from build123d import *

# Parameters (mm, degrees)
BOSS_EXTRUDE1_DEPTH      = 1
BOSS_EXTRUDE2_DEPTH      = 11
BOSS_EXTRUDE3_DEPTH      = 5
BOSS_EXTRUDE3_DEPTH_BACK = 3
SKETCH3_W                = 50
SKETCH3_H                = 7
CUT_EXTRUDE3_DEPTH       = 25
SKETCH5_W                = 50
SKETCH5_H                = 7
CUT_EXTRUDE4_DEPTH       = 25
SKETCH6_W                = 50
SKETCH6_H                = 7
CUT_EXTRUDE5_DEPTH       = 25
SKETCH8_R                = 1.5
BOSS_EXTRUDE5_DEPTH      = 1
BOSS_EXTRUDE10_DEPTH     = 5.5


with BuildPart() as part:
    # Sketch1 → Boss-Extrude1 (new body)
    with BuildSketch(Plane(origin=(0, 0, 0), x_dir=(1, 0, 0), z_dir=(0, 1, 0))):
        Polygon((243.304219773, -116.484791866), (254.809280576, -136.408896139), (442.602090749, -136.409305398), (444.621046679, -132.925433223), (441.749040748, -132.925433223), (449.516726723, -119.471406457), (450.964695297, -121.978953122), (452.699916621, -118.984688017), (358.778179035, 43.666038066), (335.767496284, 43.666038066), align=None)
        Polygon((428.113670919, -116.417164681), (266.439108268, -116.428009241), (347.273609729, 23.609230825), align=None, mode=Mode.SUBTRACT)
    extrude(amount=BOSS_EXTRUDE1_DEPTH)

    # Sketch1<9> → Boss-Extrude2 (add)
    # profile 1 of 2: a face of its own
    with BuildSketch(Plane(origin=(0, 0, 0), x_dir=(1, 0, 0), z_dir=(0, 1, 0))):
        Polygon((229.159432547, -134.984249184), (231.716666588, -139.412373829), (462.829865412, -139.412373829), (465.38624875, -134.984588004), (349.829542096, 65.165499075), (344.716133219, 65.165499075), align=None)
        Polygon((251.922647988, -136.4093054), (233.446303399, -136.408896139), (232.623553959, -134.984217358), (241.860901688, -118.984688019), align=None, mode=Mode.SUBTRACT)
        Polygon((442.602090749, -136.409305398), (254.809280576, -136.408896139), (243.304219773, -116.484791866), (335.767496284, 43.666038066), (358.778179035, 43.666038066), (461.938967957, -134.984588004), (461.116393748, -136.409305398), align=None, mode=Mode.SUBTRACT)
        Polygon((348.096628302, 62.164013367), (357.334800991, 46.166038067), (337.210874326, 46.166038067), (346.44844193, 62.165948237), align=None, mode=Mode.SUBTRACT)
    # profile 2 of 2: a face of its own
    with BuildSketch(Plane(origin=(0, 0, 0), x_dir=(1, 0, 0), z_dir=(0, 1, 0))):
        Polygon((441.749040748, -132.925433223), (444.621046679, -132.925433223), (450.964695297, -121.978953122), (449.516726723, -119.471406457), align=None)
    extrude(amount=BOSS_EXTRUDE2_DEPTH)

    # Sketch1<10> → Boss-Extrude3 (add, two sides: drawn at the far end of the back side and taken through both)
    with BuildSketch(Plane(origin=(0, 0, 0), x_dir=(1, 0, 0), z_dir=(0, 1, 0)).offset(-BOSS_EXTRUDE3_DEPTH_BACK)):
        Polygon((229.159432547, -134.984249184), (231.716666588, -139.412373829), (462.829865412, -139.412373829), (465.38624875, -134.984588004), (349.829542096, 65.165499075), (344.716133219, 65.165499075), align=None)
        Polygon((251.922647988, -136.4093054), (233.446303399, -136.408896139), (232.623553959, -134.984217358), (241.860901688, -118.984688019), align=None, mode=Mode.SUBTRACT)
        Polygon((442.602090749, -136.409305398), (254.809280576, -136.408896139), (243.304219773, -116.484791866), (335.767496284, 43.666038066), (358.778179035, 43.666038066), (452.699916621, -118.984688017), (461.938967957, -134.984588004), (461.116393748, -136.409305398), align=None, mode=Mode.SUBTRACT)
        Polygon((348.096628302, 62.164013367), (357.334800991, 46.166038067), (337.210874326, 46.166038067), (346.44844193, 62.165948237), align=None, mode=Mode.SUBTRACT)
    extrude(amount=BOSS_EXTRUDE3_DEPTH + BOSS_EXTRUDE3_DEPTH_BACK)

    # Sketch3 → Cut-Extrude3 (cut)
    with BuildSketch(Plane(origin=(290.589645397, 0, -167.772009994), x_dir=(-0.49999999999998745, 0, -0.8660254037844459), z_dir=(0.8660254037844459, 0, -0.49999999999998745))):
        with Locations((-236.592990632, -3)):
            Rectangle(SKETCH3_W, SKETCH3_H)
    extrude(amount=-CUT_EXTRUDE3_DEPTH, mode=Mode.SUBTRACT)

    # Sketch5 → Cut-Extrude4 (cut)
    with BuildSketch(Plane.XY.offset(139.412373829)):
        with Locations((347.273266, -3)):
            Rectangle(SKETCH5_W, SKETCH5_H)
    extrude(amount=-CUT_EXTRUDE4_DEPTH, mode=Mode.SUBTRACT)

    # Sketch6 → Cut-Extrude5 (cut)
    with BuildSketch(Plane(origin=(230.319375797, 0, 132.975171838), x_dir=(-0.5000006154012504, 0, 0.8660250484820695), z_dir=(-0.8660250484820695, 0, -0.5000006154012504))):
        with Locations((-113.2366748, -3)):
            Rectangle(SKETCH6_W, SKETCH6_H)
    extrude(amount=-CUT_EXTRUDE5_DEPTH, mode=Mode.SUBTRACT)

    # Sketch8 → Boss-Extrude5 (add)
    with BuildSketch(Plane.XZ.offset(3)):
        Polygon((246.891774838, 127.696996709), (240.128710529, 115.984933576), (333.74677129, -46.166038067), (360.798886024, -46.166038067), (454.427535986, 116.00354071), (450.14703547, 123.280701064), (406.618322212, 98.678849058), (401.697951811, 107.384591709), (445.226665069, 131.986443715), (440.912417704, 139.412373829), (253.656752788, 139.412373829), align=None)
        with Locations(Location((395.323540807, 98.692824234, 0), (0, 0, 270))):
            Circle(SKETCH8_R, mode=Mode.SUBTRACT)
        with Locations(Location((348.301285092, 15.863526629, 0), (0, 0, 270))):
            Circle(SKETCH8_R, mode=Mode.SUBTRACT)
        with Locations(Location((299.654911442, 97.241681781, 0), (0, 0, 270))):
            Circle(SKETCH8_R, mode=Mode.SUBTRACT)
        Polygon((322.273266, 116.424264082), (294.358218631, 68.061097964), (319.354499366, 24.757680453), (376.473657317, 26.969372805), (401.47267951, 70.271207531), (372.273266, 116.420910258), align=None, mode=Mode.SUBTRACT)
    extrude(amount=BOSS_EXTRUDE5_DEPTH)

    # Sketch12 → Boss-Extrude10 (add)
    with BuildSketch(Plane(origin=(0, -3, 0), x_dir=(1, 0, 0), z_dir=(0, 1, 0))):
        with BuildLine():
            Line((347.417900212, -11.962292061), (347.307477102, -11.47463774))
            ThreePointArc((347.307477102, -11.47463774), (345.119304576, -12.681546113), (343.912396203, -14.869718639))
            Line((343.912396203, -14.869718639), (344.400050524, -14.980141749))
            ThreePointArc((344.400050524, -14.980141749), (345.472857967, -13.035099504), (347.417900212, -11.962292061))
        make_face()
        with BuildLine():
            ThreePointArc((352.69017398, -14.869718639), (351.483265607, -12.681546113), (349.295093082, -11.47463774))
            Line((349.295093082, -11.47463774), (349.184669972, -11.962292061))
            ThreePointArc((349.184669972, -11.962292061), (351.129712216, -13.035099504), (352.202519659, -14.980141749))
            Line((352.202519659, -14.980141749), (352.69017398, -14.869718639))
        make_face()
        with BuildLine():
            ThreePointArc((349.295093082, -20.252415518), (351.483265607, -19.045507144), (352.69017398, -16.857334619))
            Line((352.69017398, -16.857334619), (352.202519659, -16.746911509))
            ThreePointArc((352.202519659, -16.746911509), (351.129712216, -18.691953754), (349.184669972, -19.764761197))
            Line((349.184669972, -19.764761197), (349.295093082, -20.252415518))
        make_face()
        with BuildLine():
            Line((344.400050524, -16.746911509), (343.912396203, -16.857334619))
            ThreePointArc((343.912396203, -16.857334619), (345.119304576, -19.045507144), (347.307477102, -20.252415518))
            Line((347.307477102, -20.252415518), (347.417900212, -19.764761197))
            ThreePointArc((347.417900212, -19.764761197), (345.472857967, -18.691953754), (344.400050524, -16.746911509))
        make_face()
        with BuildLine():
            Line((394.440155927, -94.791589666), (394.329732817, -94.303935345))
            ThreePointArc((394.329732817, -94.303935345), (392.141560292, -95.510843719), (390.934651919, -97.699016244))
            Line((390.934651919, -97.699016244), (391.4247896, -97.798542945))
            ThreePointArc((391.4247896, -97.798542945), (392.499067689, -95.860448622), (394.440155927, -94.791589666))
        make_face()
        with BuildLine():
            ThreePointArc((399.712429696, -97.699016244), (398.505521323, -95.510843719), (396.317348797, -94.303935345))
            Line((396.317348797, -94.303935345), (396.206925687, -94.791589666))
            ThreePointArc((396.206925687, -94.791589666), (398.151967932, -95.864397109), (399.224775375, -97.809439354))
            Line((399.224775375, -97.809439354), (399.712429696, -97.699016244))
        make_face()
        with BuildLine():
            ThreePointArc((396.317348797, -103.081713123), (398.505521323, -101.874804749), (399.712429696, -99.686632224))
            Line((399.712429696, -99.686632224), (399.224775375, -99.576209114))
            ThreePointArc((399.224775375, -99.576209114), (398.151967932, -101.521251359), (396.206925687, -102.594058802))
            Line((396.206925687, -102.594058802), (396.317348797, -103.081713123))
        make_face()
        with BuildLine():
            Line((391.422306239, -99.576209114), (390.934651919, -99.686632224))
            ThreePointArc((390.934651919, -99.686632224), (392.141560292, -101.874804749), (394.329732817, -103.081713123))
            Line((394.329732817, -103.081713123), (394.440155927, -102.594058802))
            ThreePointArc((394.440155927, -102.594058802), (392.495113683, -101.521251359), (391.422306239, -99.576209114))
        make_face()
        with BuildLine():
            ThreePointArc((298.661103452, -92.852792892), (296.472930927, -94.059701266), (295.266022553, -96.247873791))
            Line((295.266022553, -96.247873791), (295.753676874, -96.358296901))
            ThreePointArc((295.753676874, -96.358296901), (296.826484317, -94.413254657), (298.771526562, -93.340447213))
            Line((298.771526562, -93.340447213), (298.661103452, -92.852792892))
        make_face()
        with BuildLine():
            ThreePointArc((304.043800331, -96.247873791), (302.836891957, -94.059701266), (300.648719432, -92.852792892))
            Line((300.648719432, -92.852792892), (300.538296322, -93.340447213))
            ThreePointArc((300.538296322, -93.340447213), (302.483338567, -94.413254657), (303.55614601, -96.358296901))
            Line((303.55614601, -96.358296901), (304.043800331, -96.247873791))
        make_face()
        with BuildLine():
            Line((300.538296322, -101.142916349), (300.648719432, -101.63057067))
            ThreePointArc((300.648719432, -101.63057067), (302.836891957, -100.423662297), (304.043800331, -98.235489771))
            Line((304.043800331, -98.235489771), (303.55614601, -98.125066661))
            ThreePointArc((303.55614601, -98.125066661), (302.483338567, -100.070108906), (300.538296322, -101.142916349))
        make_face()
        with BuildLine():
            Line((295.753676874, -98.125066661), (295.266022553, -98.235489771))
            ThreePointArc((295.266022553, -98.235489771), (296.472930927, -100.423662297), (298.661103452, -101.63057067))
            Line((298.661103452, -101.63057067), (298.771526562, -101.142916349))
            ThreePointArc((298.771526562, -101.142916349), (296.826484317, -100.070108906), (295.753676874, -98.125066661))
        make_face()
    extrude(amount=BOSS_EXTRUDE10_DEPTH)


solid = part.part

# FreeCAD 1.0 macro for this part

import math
import FreeCAD as App
import Part
import Sketcher

V = App.Vector
Q = App.Units.Quantity


def add_polygon(sketch, points):
    """Adds a closed chain of lines whose ends are joined by coincident constraints."""
    first, n = sketch.GeometryCount, len(points)
    for a, b in zip(points, points[1:] + points[:1]):
        sketch.addGeometry(Part.LineSegment(App.Vector(*a, 0), App.Vector(*b, 0)), False)
    for i in range(n):
        sketch.addConstraint(Sketcher.Constraint("Coincident", first + i, 2, first + (i + 1) % n, 1))

doc = App.newDocument("Part")
params = doc.addObject("Spreadsheet::Sheet", "Params")
for row, (alias, value) in enumerate([
    ("pad1_length", "1 mm"),
    ("pad2_length", "11 mm"),
    ("pad3_length", "5 mm"),
    ("pad3_length2", "3 mm"),
    ("sketch4_width", "50 mm"),
    ("sketch4_height", "7 mm"),
    ("pocket1_length", "25 mm"),
    ("sketch5_width", "50 mm"),
    ("sketch5_height", "7 mm"),
    ("pocket2_length", "25 mm"),
    ("sketch6_width", "50 mm"),
    ("sketch6_height", "7 mm"),
    ("pocket3_length", "25 mm"),
    ("sketch7_diameter", "3 mm"),
    ("sketch7_length", "50 mm"),
    ("sketch7_length2", "10 mm"),
    ("pad4_length", "1 mm"),
    ("sketch8_radius", "4 mm"),
    ("sketch8_radius2", "4 mm"),
    ("sketch8_radius3", "4 mm"),
    ("sketch8_radius4", "4 mm"),
    ("sketch8_radius5", "4 mm"),
    ("pad5_length", "5.5 mm"),
], start=1):
    params.set(f"A{row}", alias)
    params.set(f"B{row}", "=" + value)
    params.setAlias(f"B{row}", alias)

body = doc.addObject("PartDesign::Body", "Body")

# Sketch on XZ plane
sketch1 = body.newObject("Sketcher::SketchObject", "Sketch")
sketch1.AttachmentSupport = (doc.getObject("XZ_Plane"), [""])
sketch1.MapMode = "FlatFace"
add_polygon(sketch1, [(243.30422, 116.484792), (254.809281, 136.408896), (442.602091, 136.409305), (444.621047, 132.925433), (441.749041, 132.925433), (449.516727, 119.471406), (450.964695, 121.978953), (452.699917, 118.984688), (358.778179, -43.666038), (335.767496, -43.666038)])  # lines 0-9
add_polygon(sketch1, [(347.27361, -23.609231), (428.113671, 116.417165), (266.439108, 116.428009)])  # lines 10-12
sketch1.addConstraint([
    Sketcher.Constraint("Horizontal", 3),
    Sketcher.Constraint("Horizontal", 8),
    Sketcher.Constraint("Parallel", 0, 5),
    Sketcher.Constraint("Parallel", 2, 6),
    Sketcher.Constraint("Parallel", 5, 7),
    Sketcher.Constraint("Parallel", 4, 9),
    Sketcher.Constraint("Angle", 4, Q("-60 deg")),
    Sketcher.Constraint("DistanceY", 4, 2, 1, 2, 16.937899),
    Sketcher.Constraint("DistanceX", 8, 2, 5, 2, 115.197199),
    Sketcher.Constraint("DistanceX", 11, 2, 12, 2, 80.834501),
    Sketcher.Constraint("Distance", 0, 23.007311),
    Sketcher.Constraint("Distance", 1, 187.79281),
    Sketcher.Constraint("Distance", 4, 15.535372),
    Sketcher.Constraint("Distance", 7, 187.82053),
    Sketcher.Constraint("Distance", 12, 161.693059),
    Sketcher.Constraint("DistanceX", 3, 2, 3, 1, 2.872006),
    Sketcher.Constraint("DistanceX", 8, 2, 8, 1, 23.010683),
    Sketcher.Constraint("DistanceX", -1, 1, 0, 2, 254.809281),
    Sketcher.Constraint("DistanceX", -1, 1, 3, 2, 441.749041),
    Sketcher.Constraint("DistanceY", -1, 1, 6, 2, 118.984688),
    Sketcher.Constraint("DistanceX", -1, 1, 7, 2, 358.778179),
    Sketcher.Constraint("DistanceY", 7, 2, -1, 1, 43.666038),
    Sketcher.Constraint("DistanceX", -1, 1, 10, 2, 428.113671),
    Sketcher.Constraint("DistanceX", -1, 1, 11, 2, 266.439108),
    Sketcher.Constraint("DistanceY", -1, 1, 11, 2, 116.428009),
    Sketcher.Constraint("DistanceY", 10, 2, 3, 2, 16.508269),
])
pad1 = body.newObject("PartDesign::Pad", "Pad")
pad1.Profile = sketch1
pad1.setExpression("Length", "Params.pad1_length")
pad1.Reversed = True

# Sketch on XZ plane
sketch2 = body.newObject("Sketcher::SketchObject", "Sketch001")
sketch2.AttachmentSupport = (doc.getObject("XZ_Plane"), [""])
sketch2.MapMode = "FlatFace"
add_polygon(sketch2, [(229.159433, 134.984249), (231.716667, 139.412374), (462.829865, 139.412374), (465.386249, 134.984588), (349.829542, -65.165499), (344.716133, -65.165499)])  # lines 0-5
add_polygon(sketch2, [(241.860902, 118.984688), (251.922648, 136.409305), (233.446303, 136.408896), (232.623554, 134.984217)])  # lines 6-9
add_polygon(sketch2, [(461.116394, 136.409305), (442.602091, 136.409305), (254.809281, 136.408896), (243.30422, 116.484792), (335.767496, -43.666038), (358.778179, -43.666038), (461.938968, 134.984588)])  # lines 10-16
add_polygon(sketch2, [(346.448442, -62.165948), (348.096628, -62.164013), (357.334801, -46.166038), (337.210874, -46.166038)])  # lines 17-20
add_polygon(sketch2, [(441.749041, 132.925433), (444.621047, 132.925433), (450.964695, 121.978953), (449.516727, 119.471406)])  # lines 21-24
sketch2.addConstraint([
    Sketcher.Constraint("Horizontal", 1),
    Sketcher.Constraint("Horizontal", 4),
    Sketcher.Constraint("Horizontal", 10),
    Sketcher.Constraint("Horizontal", 14),
    Sketcher.Constraint("Horizontal", 19),
    Sketcher.Constraint("Horizontal", 21),
    Sketcher.Constraint("DistanceY", 18, 2, 14, 2, 2.5),
    Sketcher.Constraint("DistanceX", 1, 1, 1, 2, 231.113199),
    Sketcher.Constraint("DistanceX", 4, 2, 4, 1, 5.113409),
    Sketcher.Constraint("DistanceY", 3, 2, -1, 1, 65.165499),
    Sketcher.Constraint("DistanceX", -1, 1, 9, 2, 241.860902),
    Sketcher.Constraint("DistanceX", -1, 1, 18, 2, 357.334801),
    Sketcher.Constraint("DistanceX", 5, 2, 4, 2, 115.556701),
    Sketcher.Constraint("DistanceX", 6, 2, 2, 2, 213.463601),
    Sketcher.Constraint("DistanceX", 7, 2, 9, 2, 8.414598),
    Sketcher.Constraint("DistanceX", 20, 2, 3, 2, 3.3811),
    Sketcher.Constraint("DistanceX", 22, 2, 16, 2, 10.151698),
    Sketcher.Constraint("DistanceY", 23, 2, 10, 2, 16.937899),
    Sketcher.Constraint("Distance", 11, 187.79281),
    Sketcher.Constraint("Distance", 12, 23.007311),
    Sketcher.Constraint("Distance", 16, 1.645129),
    Sketcher.Constraint("Distance", 18, 18.473739),
    Sketcher.Constraint("Distance", 22, 12.651771),
    Sketcher.Constraint("Distance", 24, 15.535372),
    Sketcher.Constraint("DistanceX", 10, 2, 10, 1, 18.514303),
    Sketcher.Constraint("DistanceX", 14, 1, 14, 2, 23.010683),
    Sketcher.Constraint("DistanceX", 19, 2, 19, 1, 20.123927),
    Sketcher.Constraint("DistanceX", 21, 1, 21, 2, 2.872006),
    Sketcher.Constraint("DistanceX", -1, 1, 2, 2, 465.386249),
    Sketcher.Constraint("DistanceY", -1, 1, 2, 2, 134.984588),
    Sketcher.Constraint("DistanceY", -1, 1, 5, 2, 134.984249),
    Sketcher.Constraint("DistanceY", -1, 1, 9, 2, 118.984688),
    Sketcher.Constraint("DistanceX", -1, 1, 10, 2, 442.602091),
    Sketcher.Constraint("DistanceX", -1, 1, 12, 2, 243.30422),
    Sketcher.Constraint("DistanceY", -1, 1, 12, 2, 116.484792),
    Sketcher.Constraint("DistanceY", 13, 2, -1, 1, 43.666038),
    Sketcher.Constraint("DistanceX", -1, 1, 14, 2, 358.778179),
    Sketcher.Constraint("DistanceY", -1, 1, 15, 2, 134.984588),
    Sketcher.Constraint("DistanceX", -1, 1, 17, 2, 348.096628),
    Sketcher.Constraint("DistanceX", -1, 1, 20, 2, 346.448442),
    Sketcher.Constraint("DistanceY", 20, 2, -1, 1, 62.165948),
    Sketcher.Constraint("DistanceX", -1, 1, 24, 2, 441.749041),
    Sketcher.Constraint("DistanceX", 0, 2, 6, 2, 20.205981),
    Sketcher.Constraint("DistanceY", 6, 2, 0, 2, 3.003068),
    Sketcher.Constraint("DistanceY", 7, 2, 6, 2, 0.000409),
    Sketcher.Constraint("DistanceX", 8, 2, 7, 2, 0.822749),
    Sketcher.Constraint("DistanceY", 8, 2, 7, 2, 1.424679),
    Sketcher.Constraint("DistanceY", 9, 2, 8, 2, 15.999529),
    Sketcher.Constraint("DistanceY", 10, 2, 1, 2, 3.003068),
    Sketcher.Constraint("DistanceY", 21, 2, 1, 2, 6.486941),
])
pad2 = body.newObject("PartDesign::Pad", "Pad001")
pad2.Profile = sketch2
pad2.setExpression("Length", "Params.pad2_length")
pad2.Reversed = True

# Sketch on XZ plane
sketch3 = body.newObject("Sketcher::SketchObject", "Sketch002")
sketch3.AttachmentSupport = (doc.getObject("XZ_Plane"), [""])
sketch3.MapMode = "FlatFace"
add_polygon(sketch3, [(229.159433, 134.984249), (231.716667, 139.412374), (462.829865, 139.412374), (465.386249, 134.984588), (349.829542, -65.165499), (344.716133, -65.165499)])  # lines 0-5
add_polygon(sketch3, [(241.860902, 118.984688), (251.922648, 136.409305), (233.446303, 136.408896), (232.623554, 134.984217)])  # lines 6-9
add_polygon(sketch3, [(461.116394, 136.409305), (442.602091, 136.409305), (254.809281, 136.408896), (243.30422, 116.484792), (335.767496, -43.666038), (358.778179, -43.666038), (452.699917, 118.984688), (461.938968, 134.984588)])  # lines 10-17
add_polygon(sketch3, [(346.448442, -62.165948), (348.096628, -62.164013), (357.334801, -46.166038), (337.210874, -46.166038)])  # lines 18-21
sketch3.addConstraint([
    Sketcher.Constraint("Horizontal", 1),
    Sketcher.Constraint("Horizontal", 4),
    Sketcher.Constraint("Horizontal", 10),
    Sketcher.Constraint("Horizontal", 14),
    Sketcher.Constraint("Horizontal", 20),
    Sketcher.Constraint("DistanceY", 19, 2, 14, 2, 2.5),
    Sketcher.Constraint("DistanceX", 1, 1, 1, 2, 231.113199),
    Sketcher.Constraint("DistanceX", 4, 2, 4, 1, 5.113409),
    Sketcher.Constraint("DistanceY", 3, 2, -1, 1, 65.165499),
    Sketcher.Constraint("DistanceX", -1, 1, 9, 2, 241.860902),
    Sketcher.Constraint("DistanceX", -1, 1, 19, 2, 357.334801),
    Sketcher.Constraint("DistanceX", 5, 2, 4, 2, 115.556701),
    Sketcher.Constraint("DistanceX", 6, 2, 2, 2, 213.463601),
    Sketcher.Constraint("DistanceX", 7, 2, 9, 2, 8.414598),
    Sketcher.Constraint("DistanceY", 15, 2, 2, 2, 15.9999),
    Sketcher.Constraint("DistanceY", 15, 2, 16, 2, 15.9999),
    Sketcher.Constraint("DistanceX", 21, 2, 3, 2, 3.3811),
    Sketcher.Constraint("Distance", 11, 187.79281),
    Sketcher.Constraint("Distance", 12, 23.007311),
    Sketcher.Constraint("Distance", 15, 187.82053),
    Sketcher.Constraint("Distance", 17, 1.645129),
    Sketcher.Constraint("Distance", 19, 18.473739),
    Sketcher.Constraint("DistanceX", 10, 2, 10, 1, 18.514303),
    Sketcher.Constraint("DistanceX", 14, 1, 14, 2, 23.010683),
    Sketcher.Constraint("DistanceX", 20, 2, 20, 1, 20.123927),
    Sketcher.Constraint("DistanceX", -1, 1, 2, 2, 465.386249),
    Sketcher.Constraint("DistanceY", -1, 1, 2, 2, 134.984588),
    Sketcher.Constraint("DistanceY", -1, 1, 5, 2, 134.984249),
    Sketcher.Constraint("DistanceY", -1, 1, 9, 2, 118.984688),
    Sketcher.Constraint("DistanceX", -1, 1, 10, 2, 442.602091),
    Sketcher.Constraint("DistanceX", -1, 1, 12, 2, 243.30422),
    Sketcher.Constraint("DistanceY", -1, 1, 12, 2, 116.484792),
    Sketcher.Constraint("DistanceY", 13, 2, -1, 1, 43.666038),
    Sketcher.Constraint("DistanceX", -1, 1, 14, 2, 358.778179),
    Sketcher.Constraint("DistanceX", -1, 1, 18, 2, 348.096628),
    Sketcher.Constraint("DistanceX", -1, 1, 21, 2, 346.448442),
    Sketcher.Constraint("DistanceY", 21, 2, -1, 1, 62.165948),
    Sketcher.Constraint("DistanceX", 0, 2, 6, 2, 20.205981),
    Sketcher.Constraint("DistanceY", 6, 2, 0, 2, 3.003068),
    Sketcher.Constraint("DistanceY", 7, 2, 6, 2, 0.000409),
    Sketcher.Constraint("DistanceX", 8, 2, 7, 2, 0.822749),
    Sketcher.Constraint("DistanceY", 8, 2, 7, 2, 1.424679),
    Sketcher.Constraint("DistanceY", 9, 2, 8, 2, 15.999529),
    Sketcher.Constraint("DistanceY", 10, 2, 1, 2, 3.003068),
])
pad3 = body.newObject("PartDesign::Pad", "Pad002")
pad3.Profile = sketch3
pad3.Type = "TwoLengths"
pad3.setExpression("Length", "Params.pad3_length")
pad3.setExpression("Length2", "Params.pad3_length2")
pad3.Reversed = True

# Sketch on an angled plane
sketch4 = body.newObject("Sketcher::SketchObject", "Sketch003")
sketch4.Placement = App.Placement(V(290.589645, 0, -167.77201), App.Rotation(V(-0.5, 0, -0.866025404), V(0, 1, 0), V(0.866025404, 0, -0.5), "ZXY"))
add_polygon(sketch4, [(-262, 0), (-262, -7), (-212, -7), (-212, 0)])  # lines 0-3
sketch4.addConstraint([
    Sketcher.Constraint("Vertical", 0),
    Sketcher.Constraint("Horizontal", 1),
    Sketcher.Constraint("Vertical", 2),
    Sketcher.Constraint("Horizontal", 3),
    Sketcher.Constraint("DistanceX", 1, 1, 1, 2, 50.0),
    Sketcher.Constraint("DistanceY", 0, 2, 0, 1, 7.0),
    Sketcher.Constraint("DistanceY", 0, 2, -1, 1, 6.5),
    Sketcher.Constraint("DistanceX", 0, 2, -1, 1, 261.592991),
])
sketch4.setExpression("Constraints[8]", "Params.sketch4_width")
sketch4.setExpression("Constraints[9]", "Params.sketch4_height")
pocket1 = body.newObject("PartDesign::Pocket", "Pocket")
pocket1.Profile = sketch4
pocket1.setExpression("Length", "Params.pocket1_length")

# Sketch on XY plane
sketch5 = body.newObject("Sketcher::SketchObject", "Sketch004")
sketch5.AttachmentSupport = (doc.getObject("XY_Plane"), [""])
sketch5.MapMode = "FlatFace"
sketch5.AttachmentOffset = App.Placement(V(0, 0, 139.412374), App.Rotation())
add_polygon(sketch5, [(322, 0), (322, -6), (372, -6), (372, 0)])  # lines 0-3
sketch5.addConstraint([
    Sketcher.Constraint("Vertical", 0),
    Sketcher.Constraint("Horizontal", 1),
    Sketcher.Constraint("Vertical", 2),
    Sketcher.Constraint("Horizontal", 3),
    Sketcher.Constraint("DistanceX", 1, 1, 1, 2, 50.0),
    Sketcher.Constraint("DistanceY", 0, 2, 0, 1, 7.0),
    Sketcher.Constraint("DistanceY", 0, 2, -1, 1, 6.5),
    Sketcher.Constraint("DistanceX", -1, 1, 0, 2, 322.273266),
])
sketch5.setExpression("Constraints[8]", "Params.sketch5_width")
sketch5.setExpression("Constraints[9]", "Params.sketch5_height")
pocket2 = body.newObject("PartDesign::Pocket", "Pocket001")
pocket2.Profile = sketch5
pocket2.setExpression("Length", "Params.pocket2_length")

# Sketch on an angled plane
sketch6 = body.newObject("Sketcher::SketchObject", "Sketch005")
sketch6.Placement = App.Placement(V(230.319376, 0, 132.975172), App.Rotation(V(-0.500000615, 0, 0.866025048), V(0, 0.999999999, 0), V(-0.866025048, 0, -0.500000615), "ZXY"))
add_polygon(sketch6, [(-138, 0), (-138, -6), (-88, -6), (-88, 0)])  # lines 0-3
sketch6.addConstraint([
    Sketcher.Constraint("Vertical", 0),
    Sketcher.Constraint("Horizontal", 1),
    Sketcher.Constraint("Vertical", 2),
    Sketcher.Constraint("Horizontal", 3),
    Sketcher.Constraint("DistanceX", 1, 1, 1, 2, 50.0),
    Sketcher.Constraint("DistanceY", 0, 2, 0, 1, 7.0),
    Sketcher.Constraint("DistanceY", 0, 2, -1, 1, 6.5),
    Sketcher.Constraint("DistanceX", 0, 2, -1, 1, 138.236675),
])
sketch6.setExpression("Constraints[8]", "Params.sketch6_width")
sketch6.setExpression("Constraints[9]", "Params.sketch6_height")
pocket3 = body.newObject("PartDesign::Pocket", "Pocket002")
pocket3.Profile = sketch6
pocket3.setExpression("Length", "Params.pocket3_length")

# Sketch on XZ plane
sketch7 = body.newObject("Sketcher::SketchObject", "Sketch006")
sketch7.AttachmentSupport = (doc.getObject("XZ_Plane"), [""])
sketch7.MapMode = "FlatFace"
sketch7.AttachmentOffset = App.Placement(V(0, 0, 3), App.Rotation())
add_polygon(sketch7, [(246.9, 127.7), (240.1, 116), (333.7, -46.2), (360.8, -46.2), (454.4, 116), (450.1, 123.3), (406.6, 98.7), (401.7, 107.4), (445.2, 132), (440.9, 139.4), (253.7, 139.4)])  # lines 0-10
sketch7.addGeometry(Part.Circle(V(348.3, 15.9, 0), V(0, 0, 1), 1.5), False)  # 11
sketch7.addGeometry(Part.Circle(V(299.7, 97.2, 0), V(0, 0, 1), 1.5), False)  # 12
add_polygon(sketch7, [(294.4, 68.1), (322.3, 116.4), (372.3, 116.4), (401.5, 70.3), (376.5, 27), (319.4, 24.8)])  # lines 13-18
sketch7.addGeometry(Part.Circle(V(395.3, 98.7, 0), V(0, 0, 1), 1.5), False)  # 19
sketch7.addConstraint([
    Sketcher.Constraint("Horizontal", 2),
    Sketcher.Constraint("Horizontal", 9),
    Sketcher.Constraint("Equal", 11, 12),
    Sketcher.Constraint("Equal", 12, 19),
    Sketcher.Constraint("Perpendicular", 5, 6),
    Sketcher.Constraint("Perpendicular", 6, 7),
    Sketcher.Constraint("Parallel", 0, 10),
    Sketcher.Constraint("Equal", 5, 7),
    Sketcher.Constraint("Equal", 7, 14),
    Sketcher.Constraint("Equal", 14, 16),
    Sketcher.Constraint("Equal", 16, 18),
    Sketcher.Constraint("Diameter", 11, 3.0),
    Sketcher.Constraint("Angle", 3, Q("60 deg")),
    Sketcher.Constraint("Distance", 5, 50.0),
    Sketcher.Constraint("Distance", 6, 10.0),
    Sketcher.Constraint("DistanceY", 17, 2, 12, 3, 72.484001),
    Sketcher.Constraint("Distance", 3, 187.2573),
    Sketcher.Constraint("Distance", 8, 8.588199),
    Sketcher.Constraint("DistanceY", -1, 1, 4, 2, 123.280701),
    Sketcher.Constraint("DistanceX", -1, 1, 17, 2, 319.354499),
    Sketcher.Constraint("DistanceX", 0, 2, 12, 3, 59.526201),
    Sketcher.Constraint("DistanceX", 11, 3, 2, 2, 12.497601),
    Sketcher.Constraint("DistanceX", 4, 2, 3, 2, 4.280501),
    Sketcher.Constraint("DistanceX", 9, 2, 6, 2, 148.041199),
    Sketcher.Constraint("Distance", 1, 187.235891),
    Sketcher.Constraint("Distance", 15, 54.611362),
    Sketcher.Constraint("Distance", 17, 57.161961),
    Sketcher.Constraint("DistanceX", 2, 1, 2, 2, 27.052115),
    Sketcher.Constraint("DistanceX", 9, 2, 9, 1, 187.255665),
    Sketcher.Constraint("DistanceX", -1, 1, 12, 3, 299.654911),
    Sketcher.Constraint("DistanceY", -1, 1, 12, 3, 97.241682),
    Sketcher.Constraint("DistanceX", -1, 1, 19, 3, 395.323541),
    Sketcher.Constraint("DistanceX", -1, 1, 1, 2, 333.746771),
    Sketcher.Constraint("DistanceY", 1, 2, -1, 1, 46.166038),
    Sketcher.Constraint("DistanceY", -1, 1, 5, 2, 98.678849),
    Sketcher.Constraint("DistanceY", -1, 1, 14, 2, 116.42091),
    Sketcher.Constraint("DistanceX", -1, 1, 15, 2, 401.47268),
    Sketcher.Constraint("DistanceX", -1, 1, 18, 2, 294.358219),
    Sketcher.Constraint("DistanceY", 19, 3, 0, 2, 17.292109),
    Sketcher.Constraint("DistanceX", 10, 2, 11, 3, 101.40951),
    Sketcher.Constraint("DistanceY", 11, 3, 10, 2, 111.83347),
    Sketcher.Constraint("DistanceY", 13, 2, 9, 2, 22.98811),
    Sketcher.Constraint("DistanceX", 10, 2, 13, 2, 75.381491),
])
sketch7.setExpression("Constraints[28]", "Params.sketch7_diameter")
sketch7.setExpression("Constraints[30]", "Params.sketch7_length")
sketch7.setExpression("Constraints[31]", "Params.sketch7_length2")
pad4 = body.newObject("PartDesign::Pad", "Pad003")
pad4.Profile = sketch7
pad4.setExpression("Length", "Params.pad4_length")

# Sketch on XZ plane
sketch8 = body.newObject("Sketcher::SketchObject", "Sketch007")
sketch8.AttachmentSupport = (doc.getObject("XZ_Plane"), [""])
sketch8.MapMode = "FlatFace"
sketch8.AttachmentOffset = App.Placement(V(0, 0, 3), App.Rotation())
sketch8.addGeometry([
    Part.LineSegment(V(347.4179, 11.962292, 0), V(347.307477, 11.474638, 0)),  # 0
    Part.ArcOfCircle(Part.Circle(V(348.301285, 15.863527, 0), V(0, 0, 1), 4.5), math.radians(-167.24126), math.radians(-102.75874)),  # 1
    Part.LineSegment(V(343.912396, 14.869719, 0), V(344.400051, 14.980142, 0)),  # 2
    Part.ArcOfCircle(Part.Circle(V(348.301285, 15.863527, 0), V(0, 0, 1), 4), math.radians(-167.24126), math.radians(-102.75874)),  # 3
    Part.ArcOfCircle(Part.Circle(V(348.301285, 15.863527, 0), V(0, 0, 1), 4.5), math.radians(-77.24126), math.radians(-12.75874)),  # 4
    Part.LineSegment(V(349.295093, 11.474638, 0), V(349.18467, 11.962292, 0)),  # 5
    Part.ArcOfCircle(Part.Circle(V(348.301285, 15.863527, 0), V(0, 0, 1), 4), math.radians(-77.24126), math.radians(-12.75874)),  # 6
    Part.LineSegment(V(352.20252, 14.980142, 0), V(352.690174, 14.869719, 0)),  # 7
    Part.ArcOfCircle(Part.Circle(V(348.301285, 15.863527, 0), V(0, 0, 1), 4.5), math.radians(12.75874), math.radians(77.24126)),  # 8
    Part.LineSegment(V(352.690174, 16.857335, 0), V(352.20252, 16.746912, 0)),  # 9
    Part.ArcOfCircle(Part.Circle(V(348.301285, 15.863527, 0), V(0, 0, 1), 4), math.radians(12.75874), math.radians(77.24126)),  # 10
    Part.LineSegment(V(349.18467, 19.764761, 0), V(349.295093, 20.252416, 0)),  # 11
    Part.LineSegment(V(344.400051, 16.746912, 0), V(343.912396, 16.857335, 0)),  # 12
    Part.ArcOfCircle(Part.Circle(V(348.301285, 15.863527, 0), V(0, 0, 1), 4.5), math.radians(102.75874), math.radians(167.24126)),  # 13
    Part.LineSegment(V(347.307477, 20.252416, 0), V(347.4179, 19.764761, 0)),  # 14
    Part.ArcOfCircle(Part.Circle(V(348.301285, 15.863527, 0), V(0, 0, 1), 4), math.radians(102.75874), math.radians(167.24126)),  # 15
    Part.LineSegment(V(394.440156, 94.79159, 0), V(394.329733, 94.303935, 0)),  # 16
    Part.ArcOfCircle(Part.Circle(V(395.323541, 98.692824, 0), V(0, 0, 1), 4.5), math.radians(-167.24126), math.radians(-102.75874)),  # 17
    Part.LineSegment(V(390.934652, 97.699016, 0), V(391.42479, 97.798543, 0)),  # 18
    Part.ArcOfCircle(Part.Circle(V(395.323541, 98.692824, 0), V(0, 0, 1), 4), math.radians(-167.081178), math.radians(-102.75874)),  # 19
    Part.ArcOfCircle(Part.Circle(V(395.323541, 98.692824, 0), V(0, 0, 1), 4.5), math.radians(-77.24126), math.radians(-12.75874)),  # 20
    Part.LineSegment(V(396.317349, 94.303935, 0), V(396.206926, 94.79159, 0)),  # 21
    Part.ArcOfCircle(Part.Circle(V(395.323541, 98.692824, 0), V(0, 0, 1), 4), math.radians(-77.24126), math.radians(-12.75874)),  # 22
    Part.LineSegment(V(399.224775, 97.809439, 0), V(399.71243, 97.699016, 0)),  # 23
    Part.ArcOfCircle(Part.Circle(V(395.323541, 98.692824, 0), V(0, 0, 1), 4.5), math.radians(12.75874), math.radians(77.24126)),  # 24
    Part.LineSegment(V(399.71243, 99.686632, 0), V(399.224775, 99.576209, 0)),  # 25
    Part.ArcOfCircle(Part.Circle(V(395.323541, 98.692824, 0), V(0, 0, 1), 4), math.radians(12.75874), math.radians(77.24126)),  # 26
    Part.LineSegment(V(396.206926, 102.594059, 0), V(396.317349, 103.081713, 0)),  # 27
    Part.LineSegment(V(391.422306, 99.576209, 0), V(390.934652, 99.686632, 0)),  # 28
    Part.ArcOfCircle(Part.Circle(V(395.323541, 98.692824, 0), V(0, 0, 1), 4.5), math.radians(102.75874), math.radians(167.24126)),  # 29
    Part.LineSegment(V(394.329733, 103.081713, 0), V(394.440156, 102.594059, 0)),  # 30
    Part.ArcOfCircle(Part.Circle(V(395.323541, 98.692824, 0), V(0, 0, 1), 4), math.radians(102.75874), math.radians(167.24126)),  # 31
    Part.ArcOfCircle(Part.Circle(V(299.654911, 97.241682, 0), V(0, 0, 1), 4.5), math.radians(-167.24126), math.radians(-102.75874)),  # 32
    Part.LineSegment(V(295.266023, 96.247874, 0), V(295.753677, 96.358297, 0)),  # 33
    Part.ArcOfCircle(Part.Circle(V(299.654911, 97.241682, 0), V(0, 0, 1), 4), math.radians(-167.24126), math.radians(-102.75874)),  # 34
    Part.LineSegment(V(298.771527, 93.340447, 0), V(298.661103, 92.852793, 0)),  # 35
    Part.ArcOfCircle(Part.Circle(V(299.654911, 97.241682, 0), V(0, 0, 1), 4.5), math.radians(-77.24126), math.radians(-12.75874)),  # 36
    Part.LineSegment(V(300.648719, 92.852793, 0), V(300.538296, 93.340447, 0)),  # 37
    Part.ArcOfCircle(Part.Circle(V(299.654911, 97.241682, 0), V(0, 0, 1), 4), math.radians(-77.24126), math.radians(-12.75874)),  # 38
    Part.LineSegment(V(303.556146, 96.358297, 0), V(304.0438, 96.247874, 0)),  # 39
    Part.LineSegment(V(300.538296, 101.142916, 0), V(300.648719, 101.630571, 0)),  # 40
    Part.ArcOfCircle(Part.Circle(V(299.654911, 97.241682, 0), V(0, 0, 1), 4.5), math.radians(12.75874), math.radians(77.24126)),  # 41
    Part.LineSegment(V(304.0438, 98.23549, 0), V(303.556146, 98.125067, 0)),  # 42
    Part.ArcOfCircle(Part.Circle(V(299.654911, 97.241682, 0), V(0, 0, 1), 4), math.radians(12.75874), math.radians(77.24126)),  # 43
    Part.LineSegment(V(295.753677, 98.125067, 0), V(295.266023, 98.23549, 0)),  # 44
    Part.ArcOfCircle(Part.Circle(V(299.654911, 97.241682, 0), V(0, 0, 1), 4.5), math.radians(102.75874), math.radians(167.24126)),  # 45
    Part.LineSegment(V(298.661103, 101.630571, 0), V(298.771527, 101.142916, 0)),  # 46
    Part.ArcOfCircle(Part.Circle(V(299.654911, 97.241682, 0), V(0, 0, 1), 4), math.radians(102.75874), math.radians(167.24126)),  # 47
], False)
sketch8.addConstraint([
    Sketcher.Constraint("Coincident", 0, 2, 1, 2),
    Sketcher.Constraint("Coincident", 1, 1, 2, 1),
    Sketcher.Constraint("Coincident", 2, 2, 3, 1),
    Sketcher.Constraint("Coincident", 3, 2, 0, 1),
    Sketcher.Constraint("Coincident", 4, 1, 5, 1),
    Sketcher.Constraint("Coincident", 5, 2, 6, 1),
    Sketcher.Constraint("Coincident", 6, 2, 7, 1),
    Sketcher.Constraint("Coincident", 7, 2, 4, 2),
    Sketcher.Constraint("Coincident", 8, 1, 9, 1),
    Sketcher.Constraint("Coincident", 9, 2, 10, 1),
    Sketcher.Constraint("Coincident", 10, 2, 11, 1),
    Sketcher.Constraint("Coincident", 11, 2, 8, 2),
    Sketcher.Constraint("Coincident", 12, 2, 13, 2),
    Sketcher.Constraint("Coincident", 13, 1, 14, 1),
    Sketcher.Constraint("Coincident", 14, 2, 15, 1),
    Sketcher.Constraint("Coincident", 15, 2, 12, 1),
    Sketcher.Constraint("Coincident", 16, 2, 17, 2),
    Sketcher.Constraint("Coincident", 17, 1, 18, 1),
    Sketcher.Constraint("Coincident", 18, 2, 19, 1),
    Sketcher.Constraint("Coincident", 19, 2, 16, 1),
    Sketcher.Constraint("Coincident", 20, 1, 21, 1),
    Sketcher.Constraint("Coincident", 21, 2, 22, 1),
    Sketcher.Constraint("Coincident", 22, 2, 23, 1),
    Sketcher.Constraint("Coincident", 23, 2, 20, 2),
    Sketcher.Constraint("Coincident", 24, 1, 25, 1),
    Sketcher.Constraint("Coincident", 25, 2, 26, 1),
    Sketcher.Constraint("Coincident", 26, 2, 27, 1),
    Sketcher.Constraint("Coincident", 27, 2, 24, 2),
    Sketcher.Constraint("Coincident", 28, 2, 29, 2),
    Sketcher.Constraint("Coincident", 29, 1, 30, 1),
    Sketcher.Constraint("Coincident", 30, 2, 31, 1),
    Sketcher.Constraint("Coincident", 31, 2, 28, 1),
    Sketcher.Constraint("Coincident", 32, 1, 33, 1),
    Sketcher.Constraint("Coincident", 33, 2, 34, 1),
    Sketcher.Constraint("Coincident", 34, 2, 35, 1),
    Sketcher.Constraint("Coincident", 35, 2, 32, 2),
    Sketcher.Constraint("Coincident", 36, 1, 37, 1),
    Sketcher.Constraint("Coincident", 37, 2, 38, 1),
    Sketcher.Constraint("Coincident", 38, 2, 39, 1),
    Sketcher.Constraint("Coincident", 39, 2, 36, 2),
    Sketcher.Constraint("Coincident", 40, 2, 41, 2),
    Sketcher.Constraint("Coincident", 41, 1, 42, 1),
    Sketcher.Constraint("Coincident", 42, 2, 43, 1),
    Sketcher.Constraint("Coincident", 43, 2, 40, 1),
    Sketcher.Constraint("Coincident", 44, 2, 45, 2),
    Sketcher.Constraint("Coincident", 45, 1, 46, 1),
    Sketcher.Constraint("Coincident", 46, 2, 47, 1),
    Sketcher.Constraint("Coincident", 47, 2, 44, 1),
    Sketcher.Constraint("Coincident", 3, 3, 1, 3),
    Sketcher.Constraint("Coincident", 4, 3, 1, 3),
    Sketcher.Constraint("Coincident", 6, 3, 1, 3),
    Sketcher.Constraint("Coincident", 8, 3, 1, 3),
    Sketcher.Constraint("Coincident", 10, 3, 1, 3),
    Sketcher.Constraint("Coincident", 13, 3, 1, 3),
    Sketcher.Constraint("Coincident", 15, 3, 1, 3),
    Sketcher.Constraint("Coincident", 19, 3, 17, 3),
    Sketcher.Constraint("Coincident", 20, 3, 17, 3),
    Sketcher.Constraint("Coincident", 22, 3, 17, 3),
    Sketcher.Constraint("Coincident", 24, 3, 17, 3),
    Sketcher.Constraint("Coincident", 26, 3, 17, 3),
    Sketcher.Constraint("Coincident", 29, 3, 17, 3),
    Sketcher.Constraint("Coincident", 31, 3, 17, 3),
    Sketcher.Constraint("Coincident", 34, 3, 32, 3),
    Sketcher.Constraint("Coincident", 36, 3, 32, 3),
    Sketcher.Constraint("Coincident", 38, 3, 32, 3),
    Sketcher.Constraint("Coincident", 41, 3, 32, 3),
    Sketcher.Constraint("Coincident", 43, 3, 32, 3),
    Sketcher.Constraint("Coincident", 45, 3, 32, 3),
    Sketcher.Constraint("Coincident", 47, 3, 32, 3),
    Sketcher.Constraint("Radius", 3, 4.0),
    Sketcher.Constraint("Radius", 6, 4.0),
    Sketcher.Constraint("Radius", 10, 4.0),
    Sketcher.Constraint("Radius", 15, 4.0),
    Sketcher.Constraint("Radius", 19, 4.0),
    Sketcher.Constraint("Radius", 22, 4.0),
    Sketcher.Constraint("Radius", 26, 4.0),
    Sketcher.Constraint("Radius", 31, 4.0),
    Sketcher.Constraint("Radius", 34, 4.0),
    Sketcher.Constraint("Radius", 38, 4.0),
    Sketcher.Constraint("Radius", 43, 4.0),
    Sketcher.Constraint("Radius", 47, 4.0),
    Sketcher.Constraint("Radius", 1, 4.5),
    Sketcher.Constraint("Radius", 4, 4.5),
    Sketcher.Constraint("Radius", 8, 4.5),
    Sketcher.Constraint("Radius", 13, 4.5),
    Sketcher.Constraint("Radius", 17, 4.5),
    Sketcher.Constraint("Radius", 20, 4.5),
    Sketcher.Constraint("Radius", 24, 4.5),
    Sketcher.Constraint("Radius", 29, 4.5),
    Sketcher.Constraint("Radius", 32, 4.5),
    Sketcher.Constraint("Radius", 36, 4.5),
    Sketcher.Constraint("Radius", 41, 4.5),
    Sketcher.Constraint("Radius", 45, 4.5),
    Sketcher.Constraint("DistanceX", -1, 1, 3, 2, 347.4179),
    Sketcher.Constraint("DistanceX", -1, 1, 14, 2, 347.4179),
    Sketcher.Constraint("DistanceX", -1, 1, 39, 2, 304.0438),
    Sketcher.Constraint("DistanceX", -1, 1, 41, 1, 304.0438),
    Sketcher.Constraint("Distance", 18, 0.50014),
    Sketcher.Constraint("DistanceX", -1, 1, 17, 3, 395.323541),
    Sketcher.Constraint("DistanceX", -1, 1, 32, 3, 299.654911),
    Sketcher.Constraint("DistanceY", -1, 1, 32, 3, 97.241682),
    Sketcher.Constraint("DistanceY", -1, 1, 1, 1, 14.869719),
    Sketcher.Constraint("DistanceX", -1, 1, 2, 2, 344.400051),
    Sketcher.Constraint("DistanceY", -1, 1, 2, 2, 14.980142),
    Sketcher.Constraint("DistanceX", -1, 1, 5, 2, 349.18467),
    Sketcher.Constraint("DistanceX", -1, 1, 6, 2, 352.20252),
    Sketcher.Constraint("DistanceY", -1, 1, 6, 2, 14.980142),
    Sketcher.Constraint("DistanceY", -1, 1, 7, 2, 14.869719),
    Sketcher.Constraint("DistanceX", -1, 1, 9, 2, 352.20252),
    Sketcher.Constraint("DistanceX", -1, 1, 10, 2, 349.18467),
    Sketcher.Constraint("DistanceX", -1, 1, 15, 2, 344.400051),
    Sketcher.Constraint("DistanceX", -1, 1, 17, 1, 390.934652),
    Sketcher.Constraint("DistanceY", -1, 1, 19, 2, 94.79159),
    Sketcher.Constraint("DistanceX", -1, 1, 20, 1, 396.317349),
    Sketcher.Constraint("DistanceY", -1, 1, 21, 2, 94.79159),
    Sketcher.Constraint("DistanceY", -1, 1, 22, 2, 97.809439),
    Sketcher.Constraint("DistanceX", -1, 1, 23, 2, 399.71243),
    Sketcher.Constraint("DistanceX", -1, 1, 24, 1, 399.71243),
    Sketcher.Constraint("DistanceY", -1, 1, 25, 2, 99.576209),
    Sketcher.Constraint("DistanceY", -1, 1, 26, 2, 102.594059),
    Sketcher.Constraint("DistanceX", -1, 1, 27, 2, 396.317349),
    Sketcher.Constraint("DistanceX", -1, 1, 28, 2, 390.934652),
    Sketcher.Constraint("DistanceY", -1, 1, 30, 2, 102.594059),
    Sketcher.Constraint("DistanceY", -1, 1, 31, 2, 99.576209),
    Sketcher.Constraint("DistanceX", -1, 1, 36, 1, 300.648719),
    Sketcher.Constraint("DistanceX", -1, 1, 40, 2, 300.648719),
    Sketcher.Constraint("DistanceY", -1, 1, 44, 2, 98.23549),
    Sketcher.Constraint("DistanceY", -1, 1, 45, 1, 101.630571),
    Sketcher.Constraint("DistanceY", -1, 1, 17, 3, 98.692824),
    Sketcher.Constraint("DistanceX", -1, 1, 0, 2, 347.307477),
    Sketcher.Constraint("DistanceX", -1, 1, 4, 1, 349.295093),
    Sketcher.Constraint("DistanceX", -1, 1, 8, 1, 352.690174),
    Sketcher.Constraint("DistanceX", -1, 1, 11, 2, 349.295093),
    Sketcher.Constraint("DistanceX", -1, 1, 12, 2, 343.912396),
    Sketcher.Constraint("DistanceX", -1, 1, 13, 1, 347.307477),
    Sketcher.Constraint("DistanceX", -1, 1, 16, 2, 394.329733),
    Sketcher.Constraint("DistanceX", -1, 1, 29, 1, 394.329733),
    Sketcher.Constraint("DistanceX", -1, 1, 32, 1, 295.266023),
    Sketcher.Constraint("DistanceX", -1, 1, 33, 2, 295.753677),
    Sketcher.Constraint("DistanceX", -1, 1, 34, 2, 298.771527),
    Sketcher.Constraint("DistanceX", -1, 1, 35, 2, 298.661103),
    Sketcher.Constraint("DistanceX", -1, 1, 37, 2, 300.538296),
    Sketcher.Constraint("DistanceX", -1, 1, 38, 2, 303.556146),
    Sketcher.Constraint("DistanceX", -1, 1, 42, 2, 303.556146),
    Sketcher.Constraint("DistanceX", -1, 1, 43, 2, 300.538296),
    Sketcher.Constraint("DistanceX", -1, 1, 46, 2, 298.771527),
    Sketcher.Constraint("DistanceX", -1, 1, 47, 2, 295.753677),
])
sketch8.setExpression("Constraints[69]", "Params.sketch8_radius")
sketch8.setExpression("Constraints[70]", "Params.sketch8_radius2")
sketch8.setExpression("Constraints[71]", "Params.sketch8_radius3")
sketch8.setExpression("Constraints[72]", "Params.sketch8_radius4")
sketch8.setExpression("Constraints[73]", "Params.sketch8_radius5")
pad5 = body.newObject("PartDesign::Pad", "Pad004")
pad5.Profile = sketch8
pad5.setExpression("Length", "Params.pad5_length")
pad5.Reversed = True

doc.recompute()
